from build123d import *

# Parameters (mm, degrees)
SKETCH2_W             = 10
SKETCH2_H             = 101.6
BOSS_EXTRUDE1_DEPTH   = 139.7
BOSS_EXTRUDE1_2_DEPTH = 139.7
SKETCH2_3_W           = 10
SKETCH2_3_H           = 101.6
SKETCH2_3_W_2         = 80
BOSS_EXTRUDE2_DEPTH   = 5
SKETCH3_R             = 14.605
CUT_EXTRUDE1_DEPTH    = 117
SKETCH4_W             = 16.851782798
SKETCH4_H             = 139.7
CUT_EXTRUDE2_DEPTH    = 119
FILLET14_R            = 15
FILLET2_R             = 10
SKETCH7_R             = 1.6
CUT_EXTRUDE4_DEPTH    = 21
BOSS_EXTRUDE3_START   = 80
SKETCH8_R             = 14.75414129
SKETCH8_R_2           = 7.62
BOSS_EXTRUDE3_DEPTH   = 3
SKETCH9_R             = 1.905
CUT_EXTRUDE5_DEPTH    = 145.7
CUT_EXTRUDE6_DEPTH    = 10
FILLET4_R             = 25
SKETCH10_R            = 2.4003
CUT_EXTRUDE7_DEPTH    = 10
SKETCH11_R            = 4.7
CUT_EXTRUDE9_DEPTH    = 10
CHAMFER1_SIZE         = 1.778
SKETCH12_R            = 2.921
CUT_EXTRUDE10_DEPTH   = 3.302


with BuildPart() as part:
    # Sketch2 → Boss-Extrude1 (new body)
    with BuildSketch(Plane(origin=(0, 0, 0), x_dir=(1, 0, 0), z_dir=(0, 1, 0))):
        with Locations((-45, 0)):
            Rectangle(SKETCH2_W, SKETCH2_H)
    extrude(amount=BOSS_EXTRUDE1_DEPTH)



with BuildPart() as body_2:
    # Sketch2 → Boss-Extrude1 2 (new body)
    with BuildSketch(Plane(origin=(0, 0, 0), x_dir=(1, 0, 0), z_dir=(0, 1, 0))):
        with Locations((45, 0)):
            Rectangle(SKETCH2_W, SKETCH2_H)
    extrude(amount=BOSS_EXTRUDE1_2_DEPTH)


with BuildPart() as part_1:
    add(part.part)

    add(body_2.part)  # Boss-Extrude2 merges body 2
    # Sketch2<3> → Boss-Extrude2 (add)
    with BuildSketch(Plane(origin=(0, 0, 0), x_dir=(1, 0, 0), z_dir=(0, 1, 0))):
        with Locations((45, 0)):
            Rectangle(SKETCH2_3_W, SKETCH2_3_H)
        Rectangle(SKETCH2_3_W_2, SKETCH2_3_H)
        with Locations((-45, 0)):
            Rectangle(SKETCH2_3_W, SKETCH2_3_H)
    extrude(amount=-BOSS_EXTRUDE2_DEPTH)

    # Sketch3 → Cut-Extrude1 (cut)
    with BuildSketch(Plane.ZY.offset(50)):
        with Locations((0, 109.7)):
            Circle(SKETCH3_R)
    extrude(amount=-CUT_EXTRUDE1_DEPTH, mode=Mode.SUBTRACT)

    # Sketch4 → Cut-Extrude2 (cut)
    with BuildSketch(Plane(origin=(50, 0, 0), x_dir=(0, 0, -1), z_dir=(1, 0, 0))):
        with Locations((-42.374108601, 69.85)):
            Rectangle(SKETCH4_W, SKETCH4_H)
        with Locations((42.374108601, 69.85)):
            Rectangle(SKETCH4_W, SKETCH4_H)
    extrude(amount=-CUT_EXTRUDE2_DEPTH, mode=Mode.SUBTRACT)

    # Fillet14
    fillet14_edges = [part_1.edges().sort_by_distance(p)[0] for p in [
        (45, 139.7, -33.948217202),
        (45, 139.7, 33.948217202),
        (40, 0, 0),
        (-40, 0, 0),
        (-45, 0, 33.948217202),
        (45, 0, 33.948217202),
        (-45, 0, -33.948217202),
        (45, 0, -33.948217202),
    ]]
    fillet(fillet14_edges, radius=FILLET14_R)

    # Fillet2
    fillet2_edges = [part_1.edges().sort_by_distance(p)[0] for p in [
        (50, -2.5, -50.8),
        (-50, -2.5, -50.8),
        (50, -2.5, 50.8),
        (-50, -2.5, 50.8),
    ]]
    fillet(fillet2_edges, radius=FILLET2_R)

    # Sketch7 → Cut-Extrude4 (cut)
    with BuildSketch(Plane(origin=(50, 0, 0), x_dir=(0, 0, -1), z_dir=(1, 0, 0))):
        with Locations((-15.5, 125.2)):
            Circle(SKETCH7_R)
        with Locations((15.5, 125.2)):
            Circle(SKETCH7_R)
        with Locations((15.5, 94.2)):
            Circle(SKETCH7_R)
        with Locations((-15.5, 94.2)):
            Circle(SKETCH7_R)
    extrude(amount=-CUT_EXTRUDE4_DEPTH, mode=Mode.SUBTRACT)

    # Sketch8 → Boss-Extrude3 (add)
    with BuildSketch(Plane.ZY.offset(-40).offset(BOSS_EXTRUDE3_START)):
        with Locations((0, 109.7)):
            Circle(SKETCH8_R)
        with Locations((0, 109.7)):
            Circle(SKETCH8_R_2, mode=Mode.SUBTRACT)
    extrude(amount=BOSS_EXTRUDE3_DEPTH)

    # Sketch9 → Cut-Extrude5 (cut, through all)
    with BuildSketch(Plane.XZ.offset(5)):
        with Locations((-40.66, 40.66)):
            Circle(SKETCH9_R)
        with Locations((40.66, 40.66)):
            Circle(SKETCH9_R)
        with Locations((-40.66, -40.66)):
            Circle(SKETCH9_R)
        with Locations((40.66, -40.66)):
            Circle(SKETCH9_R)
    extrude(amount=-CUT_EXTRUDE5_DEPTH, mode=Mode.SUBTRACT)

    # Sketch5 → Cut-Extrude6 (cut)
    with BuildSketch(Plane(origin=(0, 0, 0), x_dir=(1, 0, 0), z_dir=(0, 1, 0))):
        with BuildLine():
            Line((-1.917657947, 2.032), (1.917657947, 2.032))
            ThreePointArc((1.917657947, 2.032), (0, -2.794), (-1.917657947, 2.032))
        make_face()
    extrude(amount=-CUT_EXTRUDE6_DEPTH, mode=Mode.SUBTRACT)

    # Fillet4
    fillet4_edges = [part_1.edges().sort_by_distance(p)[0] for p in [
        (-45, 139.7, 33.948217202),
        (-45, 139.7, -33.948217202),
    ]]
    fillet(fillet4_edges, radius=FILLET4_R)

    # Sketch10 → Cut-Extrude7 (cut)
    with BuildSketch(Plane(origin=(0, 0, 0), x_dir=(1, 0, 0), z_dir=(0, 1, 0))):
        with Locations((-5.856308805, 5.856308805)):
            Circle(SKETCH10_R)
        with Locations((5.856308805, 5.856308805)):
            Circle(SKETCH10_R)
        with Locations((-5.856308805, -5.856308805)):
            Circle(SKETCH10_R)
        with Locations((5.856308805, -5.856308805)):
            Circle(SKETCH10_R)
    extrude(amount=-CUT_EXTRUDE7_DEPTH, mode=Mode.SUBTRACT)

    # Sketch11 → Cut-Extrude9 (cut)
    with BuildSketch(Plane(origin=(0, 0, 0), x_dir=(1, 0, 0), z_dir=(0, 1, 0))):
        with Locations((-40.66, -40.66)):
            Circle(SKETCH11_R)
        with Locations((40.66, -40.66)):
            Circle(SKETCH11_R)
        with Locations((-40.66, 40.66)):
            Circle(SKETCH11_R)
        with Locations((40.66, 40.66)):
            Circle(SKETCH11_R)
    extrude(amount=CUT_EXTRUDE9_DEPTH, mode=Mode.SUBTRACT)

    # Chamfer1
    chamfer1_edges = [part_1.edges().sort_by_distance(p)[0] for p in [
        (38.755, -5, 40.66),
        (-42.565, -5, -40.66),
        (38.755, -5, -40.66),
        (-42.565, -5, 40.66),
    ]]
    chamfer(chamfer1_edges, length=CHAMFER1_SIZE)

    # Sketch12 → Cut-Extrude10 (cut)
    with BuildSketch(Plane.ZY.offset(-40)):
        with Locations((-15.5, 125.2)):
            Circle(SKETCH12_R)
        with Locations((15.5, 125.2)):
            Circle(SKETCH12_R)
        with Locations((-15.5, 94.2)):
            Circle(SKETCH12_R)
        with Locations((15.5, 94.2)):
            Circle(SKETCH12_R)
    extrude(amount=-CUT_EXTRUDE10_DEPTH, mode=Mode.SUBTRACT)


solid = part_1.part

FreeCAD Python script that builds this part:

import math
import FreeCAD as App
import Part
import Sketcher

V = App.Vector


def edges_at(feature, points):
    """Names of the edges that pass closest to the given points."""
    edges = feature.Shape.Edges
    near = lambda p: min(range(len(edges)), key=lambda i: edges[i].distToShape(Part.Vertex(*p))[0])
    return sorted({f"Edge{near(p) + 1}" for p in points})

doc = App.newDocument("Part")
body = doc.addObject("PartDesign::Body", "Body")

# Sketch on XZ plane
sketch1 = body.newObject("Sketcher::SketchObject", "Sketch")
sketch1.AttachmentSupport = (doc.getObject("XZ_Plane"), [""])
sketch1.MapMode = "FlatFace"
sketch1.addGeometry(Part.LineSegment(V(-50, -50.8, 0), V(-50, 50.8, 0)), False)
sketch1.addGeometry(Part.LineSegment(V(-50, 50.8, 0), V(-40, 50.8, 0)), False)
sketch1.addGeometry(Part.LineSegment(V(-40, 50.8, 0), V(-40, -50.8, 0)), False)
sketch1.addGeometry(Part.LineSegment(V(-40, -50.8, 0), V(-50, -50.8, 0)), False)
sketch1.addConstraint(Sketcher.Constraint("Coincident", 0, 2, 1, 1))
sketch1.addConstraint(Sketcher.Constraint("Coincident", 1, 2, 2, 1))
sketch1.addConstraint(Sketcher.Constraint("Coincident", 2, 2, 3, 1))
sketch1.addConstraint(Sketcher.Constraint("Coincident", 3, 2, 0, 1))
sketch1.addConstraint(Sketcher.Constraint("Vertical", 0))
sketch1.addConstraint(Sketcher.Constraint("Horizontal", 1))
sketch1.addConstraint(Sketcher.Constraint("Vertical", 2))
sketch1.addConstraint(Sketcher.Constraint("Horizontal", 3))
sketch1.addConstraint(Sketcher.Constraint("DistanceX", 1, 1, 1, 2, 10.0))
sketch1.addConstraint(Sketcher.Constraint("DistanceY", 0, 1, 0, 2, 101.6))
sketch1.addConstraint(Sketcher.Constraint("DistanceX", 0, 2, -1, 1, 50.0))
sketch1.addConstraint(Sketcher.Constraint("DistanceY", -1, 1, 0, 2, 50.8))
pad1 = body.newObject("PartDesign::Pad", "Pad")
pad1.Profile = sketch1
pad1.Length = 139.7
pad1.Reversed = True
body2 = doc.addObject("PartDesign::Body", "Body001")

# Sketch on XZ plane
sketch2 = body2.newObject("Sketcher::SketchObject", "Sketch001")
sketch2.AttachmentSupport = (doc.getObject("XZ_Plane001"), [""])
sketch2.MapMode = "FlatFace"
sketch2.addGeometry(Part.LineSegment(V(40, -50.8, 0), V(40, 50.8, 0)), False)
sketch2.addGeometry(Part.LineSegment(V(40, 50.8, 0), V(50, 50.8, 0)), False)
sketch2.addGeometry(Part.LineSegment(V(50, 50.8, 0), V(50, -50.8, 0)), False)
sketch2.addGeometry(Part.LineSegment(V(50, -50.8, 0), V(40, -50.8, 0)), False)
sketch2.addConstraint(Sketcher.Constraint("Coincident", 0, 2, 1, 1))
sketch2.addConstraint(Sketcher.Constraint("Coincident", 1, 2, 2, 1))
sketch2.addConstraint(Sketcher.Constraint("Coincident", 2, 2, 3, 1))
sketch2.addConstraint(Sketcher.Constraint("Coincident", 3, 2, 0, 1))
sketch2.addConstraint(Sketcher.Constraint("Vertical", 0))
sketch2.addConstraint(Sketcher.Constraint("Horizontal", 1))
sketch2.addConstraint(Sketcher.Constraint("Vertical", 2))
sketch2.addConstraint(Sketcher.Constraint("Horizontal", 3))
sketch2.addConstraint(Sketcher.Constraint("DistanceX", 1, 1, 1, 2, 10.0))
sketch2.addConstraint(Sketcher.Constraint("DistanceY", 0, 1, 0, 2, 101.6))
sketch2.addConstraint(Sketcher.Constraint("DistanceX", -1, 1, 0, 2, 40.0))
sketch2.addConstraint(Sketcher.Constraint("DistanceY", -1, 1, 0, 2, 50.8))
pad2 = body2.newObject("PartDesign::Pad", "Pad001")
pad2.Profile = sketch2
pad2.Length = 139.7
pad2.Reversed = True
body.AllowCompound = True
doc.recompute()

boolean = body.newObject("PartDesign::Boolean", "Boolean")
boolean.Type = "Fuse"
boolean.addObjects([body2])

# Sketch on XZ plane
sketch3 = body.newObject("Sketcher::SketchObject", "Sketch002")
sketch3.AttachmentSupport = (doc.getObject("XZ_Plane"), [""])
sketch3.MapMode = "FlatFace"
sketch3.addGeometry(Part.LineSegment(V(50, 50.8, 0), V(50, -50.8, 0)), False)
sketch3.addGeometry(Part.LineSegment(V(50, -50.8, 0), V(-50, -50.8, 0)), False)
sketch3.addGeometry(Part.LineSegment(V(-50, -50.8, 0), V(-50, 50.8, 0)), False)
sketch3.addGeometry(Part.LineSegment(V(-50, 50.8, 0), V(50, 50.8, 0)), False)
sketch3.addConstraint(Sketcher.Constraint("Coincident", 0, 2, 1, 1))
sketch3.addConstraint(Sketcher.Constraint("Coincident", 1, 2, 2, 1))
sketch3.addConstraint(Sketcher.Constraint("Coincident", 2, 2, 3, 1))
sketch3.addConstraint(Sketcher.Constraint("Coincident", 3, 2, 0, 1))
sketch3.addConstraint(Sketcher.Constraint("Vertical", 0))
sketch3.addConstraint(Sketcher.Constraint("Horizontal", 1))
sketch3.addConstraint(Sketcher.Constraint("Vertical", 2))
sketch3.addConstraint(Sketcher.Constraint("Horizontal", 3))
sketch3.addConstraint(Sketcher.Constraint("Symmetric", 0, 2, 2, 2, -1, 1))
sketch3.addConstraint(Sketcher.Constraint("DistanceX", 1, 2, 1, 1, 100.0))
sketch3.addConstraint(Sketcher.Constraint("DistanceY", 0, 2, 0, 1, 101.6))
pad3 = body.newObject("PartDesign::Pad", "Pad002")
pad3.Profile = sketch3
pad3.Length = 5

# Sketch on YZ plane
sketch4 = body.newObject("Sketcher::SketchObject", "Sketch003")
sketch4.AttachmentSupport = (doc.getObject("YZ_Plane"), [""])
sketch4.MapMode = "FlatFace"
sketch4.AttachmentOffset = App.Placement(V(0, 0, -50), App.Rotation())
sketch4.addGeometry(Part.Circle(V(109.7, 0, 0), V(0, 0, 1), 14.605), False)
sketch4.addConstraint(Sketcher.Constraint("PointOnObject", 0, 3, -1))
sketch4.addConstraint(Sketcher.Constraint("Diameter", 0, 29.21))
sketch4.addConstraint(Sketcher.Constraint("DistanceX", -1, 1, 0, 3, 109.7))
pocket1 = body.newObject("PartDesign::Pocket", "Pocket")
pocket1.Profile = sketch4
pocket1.Length = 117
pocket1.Reversed = True

# Sketch on YZ plane
sketch5 = body.newObject("Sketcher::SketchObject", "Sketch004")
sketch5.AttachmentSupport = (doc.getObject("YZ_Plane"), [""])
sketch5.MapMode = "FlatFace"
sketch5.AttachmentOffset = App.Placement(V(0, 0, 50), App.Rotation())
sketch5.addGeometry(Part.LineSegment(V(139.7, 50.8, 0), V(0, 50.8, 0)), False)
sketch5.addGeometry(Part.LineSegment(V(0, 50.8, 0), V(0, 33.948217, 0)), False)
sketch5.addGeometry(Part.LineSegment(V(0, 33.948217, 0), V(139.7, 33.948217, 0)), False)
sketch5.addGeometry(Part.LineSegment(V(139.7, 33.948217, 0), V(139.7, 50.8, 0)), False)
sketch5.addGeometry(Part.LineSegment(V(139.7, -33.948217, 0), V(0, -33.948217, 0)), False)
sketch5.addGeometry(Part.LineSegment(V(0, -33.948217, 0), V(0, -50.8, 0)), False)
sketch5.addGeometry(Part.LineSegment(V(0, -50.8, 0), V(139.7, -50.8, 0)), False)
sketch5.addGeometry(Part.LineSegment(V(139.7, -50.8, 0), V(139.7, -33.948217, 0)), False)
sketch5.addConstraint(Sketcher.Constraint("Coincident", 0, 2, 1, 1))
sketch5.addConstraint(Sketcher.Constraint("Coincident", 1, 2, 2, 1))
sketch5.addConstraint(Sketcher.Constraint("Coincident", 2, 2, 3, 1))
sketch5.addConstraint(Sketcher.Constraint("Coincident", 3, 2, 0, 1))
sketch5.addConstraint(Sketcher.Constraint("Coincident", 4, 2, 5, 1))
sketch5.addConstraint(Sketcher.Constraint("Coincident", 5, 2, 6, 1))
sketch5.addConstraint(Sketcher.Constraint("Coincident", 6, 2, 7, 1))
sketch5.addConstraint(Sketcher.Constraint("Coincident", 7, 2, 4, 1))
sketch5.addConstraint(Sketcher.Constraint("Horizontal", 0))
sketch5.addConstraint(Sketcher.Constraint("Vertical", 1))
sketch5.addConstraint(Sketcher.Constraint("Horizontal", 2))
sketch5.addConstraint(Sketcher.Constraint("Vertical", 3))
sketch5.addConstraint(Sketcher.Constraint("Horizontal", 4))
sketch5.addConstraint(Sketcher.Constraint("Vertical", 5))
sketch5.addConstraint(Sketcher.Constraint("Horizontal", 6))
sketch5.addConstraint(Sketcher.Constraint("Vertical", 7))
sketch5.addConstraint(Sketcher.Constraint("Symmetric", 1, 2, 4, 2, -1, 1))
sketch5.addConstraint(Sketcher.Constraint("Symmetric", 0, 2, 5, 2, -1))
sketch5.addConstraint(Sketcher.Constraint("Vertical", 3, 2, 6, 2))
sketch5.addConstraint(Sketcher.Constraint("DistanceX", 0, 2, 0, 1, 139.7))
sketch5.addConstraint(Sketcher.Constraint("DistanceY", -1, 1, 0, 2, 50.8))
sketch5.addConstraint(Sketcher.Constraint("DistanceY", 1, 2, 1, 1, 16.851783))
pocket2 = body.newObject("PartDesign::Pocket", "Pocket001")
pocket2.Profile = sketch5
pocket2.Length = 119
doc.recompute()

fillet = body.newObject("PartDesign::Fillet", "Fillet")
fillet.Base = (pocket2, edges_at(pocket2, [
    (45, 139.7, -33.948),
    (45, 139.7, 33.948),
    (40, 0, 0),
    (-40, 0, 0),
    (-45, 0, 33.948),
    (45, 0, 33.948),
    (-45, 0, -33.948),
    (45, 0, -33.948),
]))
fillet.Radius = 15
doc.recompute()

fillet2 = body.newObject("PartDesign::Fillet", "Fillet001")
fillet2.Base = (fillet, edges_at(fillet, [
    (50, -2.5, -50.8),
    (-50, -2.5, -50.8),
    (50, -2.5, 50.8),
    (-50, -2.5, 50.8),
]))
fillet2.Radius = 10

# Sketch on YZ plane
sketch6 = body.newObject("Sketcher::SketchObject", "Sketch005")
sketch6.AttachmentSupport = (doc.getObject("YZ_Plane"), [""])
sketch6.MapMode = "FlatFace"
sketch6.AttachmentOffset = App.Placement(V(0, 0, 50), App.Rotation())
sketch6.addGeometry(Part.Circle(V(125.2, 15.5, 0), V(0, 0, 1), 1.6), False)
sketch6.addGeometry(Part.Circle(V(125.2, -15.5, 0), V(0, 0, 1), 1.6), False)
sketch6.addGeometry(Part.Circle(V(94.2, -15.5, 0), V(0, 0, 1), 1.6), False)
sketch6.addGeometry(Part.Circle(V(94.2, 15.5, 0), V(0, 0, 1), 1.6), False)
sketch6.addConstraint(Sketcher.Constraint("Equal", 0, 1))
sketch6.addConstraint(Sketcher.Constraint("Equal", 1, 2))
sketch6.addConstraint(Sketcher.Constraint("Equal", 2, 3))
sketch6.addConstraint(Sketcher.Constraint("Symmetric", 0, 3, 1, 3, -1))
sketch6.addConstraint(Sketcher.Constraint("Symmetric", 2, 3, 3, 3, -1))
sketch6.addConstraint(Sketcher.Constraint("Horizontal", 1, 3, 2, 3))
sketch6.addConstraint(Sketcher.Constraint("Diameter", 0, 3.2))
sketch6.addConstraint(Sketcher.Constraint("DistanceY", 1, 3, 0, 3, 31.0))
sketch6.addConstraint(Sketcher.Constraint("DistanceX", 2, 3, 1, 3, 31.0))
sketch6.addConstraint(Sketcher.Constraint("DistanceX", -1, 1, 0, 3, 125.2))
pocket3 = body.newObject("PartDesign::Pocket", "Pocket002")
pocket3.Profile = sketch6
pocket3.Length = 21

# Sketch on YZ plane
sketch7 = body.newObject("Sketcher::SketchObject", "Sketch006")
sketch7.AttachmentSupport = (doc.getObject("YZ_Plane"), [""])
sketch7.MapMode = "FlatFace"
sketch7.AttachmentOffset = App.Placement(V(0, 0, -40), App.Rotation())
sketch7.addGeometry(Part.Circle(V(109.7, 0, 0), V(0, 0, 1), 14.754141), False)
sketch7.addGeometry(Part.Circle(V(109.7, 0, 0), V(0, 0, 1), 7.62), False)
sketch7.addConstraint(Sketcher.Constraint("Coincident", 1, 3, 0, 3))
sketch7.addConstraint(Sketcher.Constraint("PointOnObject", 0, 3, -1))
sketch7.addConstraint(Sketcher.Constraint("Diameter", 1, 15.24))
sketch7.addConstraint(Sketcher.Constraint("DistanceX", -1, 1, 0, 3, 109.7))
sketch7.addConstraint(Sketcher.Constraint("Diameter", 0, 29.508283))
pad4 = body.newObject("PartDesign::Pad", "Pad003")
pad4.Profile = sketch7
pad4.Length = 3
pad4.Reversed = True

# Sketch on XZ plane
sketch8 = body.newObject("Sketcher::SketchObject", "Sketch007")
sketch8.AttachmentSupport = (doc.getObject("XZ_Plane"), [""])
sketch8.MapMode = "FlatFace"
sketch8.AttachmentOffset = App.Placement(V(0, 0, 5), App.Rotation())
sketch8.addGeometry(Part.Circle(V(-40.66, 40.66, 0), V(0, 0, 1), 1.905), False)
sketch8.addGeometry(Part.Circle(V(40.66, 40.66, 0), V(0, 0, 1), 1.905), False)
sketch8.addGeometry(Part.Circle(V(-40.66, -40.66, 0), V(0, 0, 1), 1.905), False)
sketch8.addGeometry(Part.Circle(V(40.66, -40.66, 0), V(0, 0, 1), 1.905), False)
sketch8.addConstraint(Sketcher.Constraint("Equal", 0, 1))
sketch8.addConstraint(Sketcher.Constraint("Equal", 1, 2))
sketch8.addConstraint(Sketcher.Constraint("Equal", 2, 3))
sketch8.addConstraint(Sketcher.Constraint("Symmetric", 1, 3, 2, 3, -1, 1))
sketch8.addConstraint(Sketcher.Constraint("Symmetric", 0, 3, 3, 3, -1, 1))
sketch8.addConstraint(Sketcher.Constraint("Symmetric", 0, 3, 1, 3, -2))
sketch8.addConstraint(Sketcher.Constraint("Diameter", 0, 3.81))
sketch8.addConstraint(Sketcher.Constraint("DistanceX", 0, 3, -1, 1, 40.66))
sketch8.addConstraint(Sketcher.Constraint("DistanceY", -1, 1, 0, 3, 40.66))
pocket4 = body.newObject("PartDesign::Pocket", "Pocket003")
pocket4.Profile = sketch8
pocket4.Type = "ThroughAll"

# Sketch on XZ plane
sketch9 = body.newObject("Sketcher::SketchObject", "Sketch008")
sketch9.AttachmentSupport = (doc.getObject("XZ_Plane"), [""])
sketch9.MapMode = "FlatFace"
sketch9.addGeometry(Part.LineSegment(V(1.917658, -2.032, 0), V(-1.917658, -2.032, 0)), False)
sketch9.addGeometry(Part.ArcOfCircle(Part.Circle(V(0, 0, 0), V(0, 0, 1), 2.794), math.radians(-46.658242), math.radians(226.658242)), False)
sketch9.addConstraint(Sketcher.Constraint("Coincident", 0, 1, 1, 1))
sketch9.addConstraint(Sketcher.Constraint("Coincident", 1, 2, 0, 2))
sketch9.addConstraint(Sketcher.Constraint("Horizontal", 0))
sketch9.addConstraint(Sketcher.Constraint("Coincident", 1, 3, -1, 1))
sketch9.addConstraint(Sketcher.Constraint("Radius", 1, 2.794))
sketch9.addConstraint(Sketcher.Constraint("DistanceY", 0, 1, -1, 1, 2.032))
pocket5 = body.newObject("PartDesign::Pocket", "Pocket004")
pocket5.Profile = sketch9
pocket5.Length = 10
pocket5.Reversed = True
doc.recompute()

fillet3 = body.newObject("PartDesign::Fillet", "Fillet002")
fillet3.Base = (pocket5, edges_at(pocket5, [(-45, 139.7, 33.948), (-45, 139.7, -33.948)]))
fillet3.Radius = 25

# Sketch on XZ plane
sketch10 = body.newObject("Sketcher::SketchObject", "Sketch009")
sketch10.AttachmentSupport = (doc.getObject("XZ_Plane"), [""])
sketch10.MapMode = "FlatFace"
sketch10.addGeometry(Part.Circle(V(-5.856309, -5.856309, 0), V(0, 0, 1), 2.4003), False)
sketch10.addGeometry(Part.Circle(V(5.856309, -5.856309, 0), V(0, 0, 1), 2.4003), False)
sketch10.addGeometry(Part.Circle(V(-5.856309, 5.856309, 0), V(0, 0, 1), 2.4003), False)
sketch10.addGeometry(Part.Circle(V(5.856309, 5.856309, 0), V(0, 0, 1), 2.4003), False)
sketch10.addConstraint(Sketcher.Constraint("Equal", 0, 1))
sketch10.addConstraint(Sketcher.Constraint("Equal", 1, 2))
sketch10.addConstraint(Sketcher.Constraint("Equal", 2, 3))
sketch10.addConstraint(Sketcher.Constraint("Symmetric", 1, 3, 2, 3, -1, 1))
sketch10.addConstraint(Sketcher.Constraint("Symmetric", 0, 3, 3, 3, -1, 1))
sketch10.addConstraint(Sketcher.Constraint("Symmetric", 0, 3, 1, 3, -2))
sketch10.addConstraint(Sketcher.Constraint("Diameter", 0, 4.8006))
sketch10.addConstraint(Sketcher.Constraint("DistanceX", 0, 3, -1, 1, 5.856309))
sketch10.addConstraint(Sketcher.Constraint("DistanceY", 0, 3, -1, 1, 5.856309))
pocket6 = body.newObject("PartDesign::Pocket", "Pocket005")
pocket6.Profile = sketch10
pocket6.Length = 10
pocket6.Reversed = True

# Sketch on XZ plane
sketch11 = body.newObject("Sketcher::SketchObject", "Sketch010")
sketch11.AttachmentSupport = (doc.getObject("XZ_Plane"), [""])
sketch11.MapMode = "FlatFace"
sketch11.addGeometry(Part.Circle(V(-40.66, 40.66, 0), V(0, 0, 1), 4.7), False)
sketch11.addGeometry(Part.Circle(V(40.66, 40.66, 0), V(0, 0, 1), 4.7), False)
sketch11.addGeometry(Part.Circle(V(-40.66, -40.66, 0), V(0, 0, 1), 4.7), False)
sketch11.addGeometry(Part.Circle(V(40.66, -40.66, 0), V(0, 0, 1), 4.7), False)
sketch11.addConstraint(Sketcher.Constraint("Equal", 0, 1))
sketch11.addConstraint(Sketcher.Constraint("Equal", 1, 2))
sketch11.addConstraint(Sketcher.Constraint("Equal", 2, 3))
sketch11.addConstraint(Sketcher.Constraint("Symmetric", 1, 3, 2, 3, -1, 1))
sketch11.addConstraint(Sketcher.Constraint("Symmetric", 0, 3, 3, 3, -1, 1))
sketch11.addConstraint(Sketcher.Constraint("Symmetric", 0, 3, 1, 3, -2))
sketch11.addConstraint(Sketcher.Constraint("Diameter", 0, 9.4))
sketch11.addConstraint(Sketcher.Constraint("DistanceX", 0, 3, -1, 1, 40.66))
sketch11.addConstraint(Sketcher.Constraint("DistanceY", -1, 1, 0, 3, 40.66))
pocket7 = body.newObject("PartDesign::Pocket", "Pocket006")
pocket7.Profile = sketch11
pocket7.Length = 10
doc.recompute()

chamfer = body.newObject("PartDesign::Chamfer", "Chamfer")
chamfer.Base = (pocket7, edges_at(pocket7, [
    (38.755, -5, 40.66),
    (-42.565, -5, -40.66),
    (38.755, -5, -40.66),
    (-42.565, -5, 40.66),
]))
chamfer.Size = 1.778

# Sketch on YZ plane
sketch12 = body.newObject("Sketcher::SketchObject", "Sketch011")
sketch12.AttachmentSupport = (doc.getObject("YZ_Plane"), [""])
sketch12.MapMode = "FlatFace"
sketch12.AttachmentOffset = App.Placement(V(0, 0, 40), App.Rotation())
sketch12.addGeometry(Part.Circle(V(125.2, -15.5, 0), V(0, 0, 1), 2.921), False)
sketch12.addGeometry(Part.Circle(V(125.2, 15.5, 0), V(0, 0, 1), 2.921), False)
sketch12.addGeometry(Part.Circle(V(94.2, -15.5, 0), V(0, 0, 1), 2.921), False)
sketch12.addGeometry(Part.Circle(V(94.2, 15.5, 0), V(0, 0, 1), 2.921), False)
sketch12.addConstraint(Sketcher.Constraint("Equal", 0, 1))
sketch12.addConstraint(Sketcher.Constraint("Equal", 1, 2))
sketch12.addConstraint(Sketcher.Constraint("Equal", 2, 3))
sketch12.addConstraint(Sketcher.Constraint("Symmetric", 0, 3, 1, 3, -1))
sketch12.addConstraint(Sketcher.Constraint("Symmetric", 2, 3, 3, 3, -1))
sketch12.addConstraint(Sketcher.Constraint("Horizontal", 0, 3, 2, 3))
sketch12.addConstraint(Sketcher.Constraint("Diameter", 0, 5.842))
sketch12.addConstraint(Sketcher.Constraint("DistanceY", 0, 3, 1, 3, 31.0))
sketch12.addConstraint(Sketcher.Constraint("DistanceX", 2, 3, 0, 3, 31.0))
sketch12.addConstraint(Sketcher.Constraint("DistanceX", -1, 1, 0, 3, 125.2))
pocket8 = body.newObject("PartDesign::Pocket", "Pocket007")
pocket8.Profile = sketch12
pocket8.Length = 3.302
pocket8.Reversed = True

doc.recompute()
